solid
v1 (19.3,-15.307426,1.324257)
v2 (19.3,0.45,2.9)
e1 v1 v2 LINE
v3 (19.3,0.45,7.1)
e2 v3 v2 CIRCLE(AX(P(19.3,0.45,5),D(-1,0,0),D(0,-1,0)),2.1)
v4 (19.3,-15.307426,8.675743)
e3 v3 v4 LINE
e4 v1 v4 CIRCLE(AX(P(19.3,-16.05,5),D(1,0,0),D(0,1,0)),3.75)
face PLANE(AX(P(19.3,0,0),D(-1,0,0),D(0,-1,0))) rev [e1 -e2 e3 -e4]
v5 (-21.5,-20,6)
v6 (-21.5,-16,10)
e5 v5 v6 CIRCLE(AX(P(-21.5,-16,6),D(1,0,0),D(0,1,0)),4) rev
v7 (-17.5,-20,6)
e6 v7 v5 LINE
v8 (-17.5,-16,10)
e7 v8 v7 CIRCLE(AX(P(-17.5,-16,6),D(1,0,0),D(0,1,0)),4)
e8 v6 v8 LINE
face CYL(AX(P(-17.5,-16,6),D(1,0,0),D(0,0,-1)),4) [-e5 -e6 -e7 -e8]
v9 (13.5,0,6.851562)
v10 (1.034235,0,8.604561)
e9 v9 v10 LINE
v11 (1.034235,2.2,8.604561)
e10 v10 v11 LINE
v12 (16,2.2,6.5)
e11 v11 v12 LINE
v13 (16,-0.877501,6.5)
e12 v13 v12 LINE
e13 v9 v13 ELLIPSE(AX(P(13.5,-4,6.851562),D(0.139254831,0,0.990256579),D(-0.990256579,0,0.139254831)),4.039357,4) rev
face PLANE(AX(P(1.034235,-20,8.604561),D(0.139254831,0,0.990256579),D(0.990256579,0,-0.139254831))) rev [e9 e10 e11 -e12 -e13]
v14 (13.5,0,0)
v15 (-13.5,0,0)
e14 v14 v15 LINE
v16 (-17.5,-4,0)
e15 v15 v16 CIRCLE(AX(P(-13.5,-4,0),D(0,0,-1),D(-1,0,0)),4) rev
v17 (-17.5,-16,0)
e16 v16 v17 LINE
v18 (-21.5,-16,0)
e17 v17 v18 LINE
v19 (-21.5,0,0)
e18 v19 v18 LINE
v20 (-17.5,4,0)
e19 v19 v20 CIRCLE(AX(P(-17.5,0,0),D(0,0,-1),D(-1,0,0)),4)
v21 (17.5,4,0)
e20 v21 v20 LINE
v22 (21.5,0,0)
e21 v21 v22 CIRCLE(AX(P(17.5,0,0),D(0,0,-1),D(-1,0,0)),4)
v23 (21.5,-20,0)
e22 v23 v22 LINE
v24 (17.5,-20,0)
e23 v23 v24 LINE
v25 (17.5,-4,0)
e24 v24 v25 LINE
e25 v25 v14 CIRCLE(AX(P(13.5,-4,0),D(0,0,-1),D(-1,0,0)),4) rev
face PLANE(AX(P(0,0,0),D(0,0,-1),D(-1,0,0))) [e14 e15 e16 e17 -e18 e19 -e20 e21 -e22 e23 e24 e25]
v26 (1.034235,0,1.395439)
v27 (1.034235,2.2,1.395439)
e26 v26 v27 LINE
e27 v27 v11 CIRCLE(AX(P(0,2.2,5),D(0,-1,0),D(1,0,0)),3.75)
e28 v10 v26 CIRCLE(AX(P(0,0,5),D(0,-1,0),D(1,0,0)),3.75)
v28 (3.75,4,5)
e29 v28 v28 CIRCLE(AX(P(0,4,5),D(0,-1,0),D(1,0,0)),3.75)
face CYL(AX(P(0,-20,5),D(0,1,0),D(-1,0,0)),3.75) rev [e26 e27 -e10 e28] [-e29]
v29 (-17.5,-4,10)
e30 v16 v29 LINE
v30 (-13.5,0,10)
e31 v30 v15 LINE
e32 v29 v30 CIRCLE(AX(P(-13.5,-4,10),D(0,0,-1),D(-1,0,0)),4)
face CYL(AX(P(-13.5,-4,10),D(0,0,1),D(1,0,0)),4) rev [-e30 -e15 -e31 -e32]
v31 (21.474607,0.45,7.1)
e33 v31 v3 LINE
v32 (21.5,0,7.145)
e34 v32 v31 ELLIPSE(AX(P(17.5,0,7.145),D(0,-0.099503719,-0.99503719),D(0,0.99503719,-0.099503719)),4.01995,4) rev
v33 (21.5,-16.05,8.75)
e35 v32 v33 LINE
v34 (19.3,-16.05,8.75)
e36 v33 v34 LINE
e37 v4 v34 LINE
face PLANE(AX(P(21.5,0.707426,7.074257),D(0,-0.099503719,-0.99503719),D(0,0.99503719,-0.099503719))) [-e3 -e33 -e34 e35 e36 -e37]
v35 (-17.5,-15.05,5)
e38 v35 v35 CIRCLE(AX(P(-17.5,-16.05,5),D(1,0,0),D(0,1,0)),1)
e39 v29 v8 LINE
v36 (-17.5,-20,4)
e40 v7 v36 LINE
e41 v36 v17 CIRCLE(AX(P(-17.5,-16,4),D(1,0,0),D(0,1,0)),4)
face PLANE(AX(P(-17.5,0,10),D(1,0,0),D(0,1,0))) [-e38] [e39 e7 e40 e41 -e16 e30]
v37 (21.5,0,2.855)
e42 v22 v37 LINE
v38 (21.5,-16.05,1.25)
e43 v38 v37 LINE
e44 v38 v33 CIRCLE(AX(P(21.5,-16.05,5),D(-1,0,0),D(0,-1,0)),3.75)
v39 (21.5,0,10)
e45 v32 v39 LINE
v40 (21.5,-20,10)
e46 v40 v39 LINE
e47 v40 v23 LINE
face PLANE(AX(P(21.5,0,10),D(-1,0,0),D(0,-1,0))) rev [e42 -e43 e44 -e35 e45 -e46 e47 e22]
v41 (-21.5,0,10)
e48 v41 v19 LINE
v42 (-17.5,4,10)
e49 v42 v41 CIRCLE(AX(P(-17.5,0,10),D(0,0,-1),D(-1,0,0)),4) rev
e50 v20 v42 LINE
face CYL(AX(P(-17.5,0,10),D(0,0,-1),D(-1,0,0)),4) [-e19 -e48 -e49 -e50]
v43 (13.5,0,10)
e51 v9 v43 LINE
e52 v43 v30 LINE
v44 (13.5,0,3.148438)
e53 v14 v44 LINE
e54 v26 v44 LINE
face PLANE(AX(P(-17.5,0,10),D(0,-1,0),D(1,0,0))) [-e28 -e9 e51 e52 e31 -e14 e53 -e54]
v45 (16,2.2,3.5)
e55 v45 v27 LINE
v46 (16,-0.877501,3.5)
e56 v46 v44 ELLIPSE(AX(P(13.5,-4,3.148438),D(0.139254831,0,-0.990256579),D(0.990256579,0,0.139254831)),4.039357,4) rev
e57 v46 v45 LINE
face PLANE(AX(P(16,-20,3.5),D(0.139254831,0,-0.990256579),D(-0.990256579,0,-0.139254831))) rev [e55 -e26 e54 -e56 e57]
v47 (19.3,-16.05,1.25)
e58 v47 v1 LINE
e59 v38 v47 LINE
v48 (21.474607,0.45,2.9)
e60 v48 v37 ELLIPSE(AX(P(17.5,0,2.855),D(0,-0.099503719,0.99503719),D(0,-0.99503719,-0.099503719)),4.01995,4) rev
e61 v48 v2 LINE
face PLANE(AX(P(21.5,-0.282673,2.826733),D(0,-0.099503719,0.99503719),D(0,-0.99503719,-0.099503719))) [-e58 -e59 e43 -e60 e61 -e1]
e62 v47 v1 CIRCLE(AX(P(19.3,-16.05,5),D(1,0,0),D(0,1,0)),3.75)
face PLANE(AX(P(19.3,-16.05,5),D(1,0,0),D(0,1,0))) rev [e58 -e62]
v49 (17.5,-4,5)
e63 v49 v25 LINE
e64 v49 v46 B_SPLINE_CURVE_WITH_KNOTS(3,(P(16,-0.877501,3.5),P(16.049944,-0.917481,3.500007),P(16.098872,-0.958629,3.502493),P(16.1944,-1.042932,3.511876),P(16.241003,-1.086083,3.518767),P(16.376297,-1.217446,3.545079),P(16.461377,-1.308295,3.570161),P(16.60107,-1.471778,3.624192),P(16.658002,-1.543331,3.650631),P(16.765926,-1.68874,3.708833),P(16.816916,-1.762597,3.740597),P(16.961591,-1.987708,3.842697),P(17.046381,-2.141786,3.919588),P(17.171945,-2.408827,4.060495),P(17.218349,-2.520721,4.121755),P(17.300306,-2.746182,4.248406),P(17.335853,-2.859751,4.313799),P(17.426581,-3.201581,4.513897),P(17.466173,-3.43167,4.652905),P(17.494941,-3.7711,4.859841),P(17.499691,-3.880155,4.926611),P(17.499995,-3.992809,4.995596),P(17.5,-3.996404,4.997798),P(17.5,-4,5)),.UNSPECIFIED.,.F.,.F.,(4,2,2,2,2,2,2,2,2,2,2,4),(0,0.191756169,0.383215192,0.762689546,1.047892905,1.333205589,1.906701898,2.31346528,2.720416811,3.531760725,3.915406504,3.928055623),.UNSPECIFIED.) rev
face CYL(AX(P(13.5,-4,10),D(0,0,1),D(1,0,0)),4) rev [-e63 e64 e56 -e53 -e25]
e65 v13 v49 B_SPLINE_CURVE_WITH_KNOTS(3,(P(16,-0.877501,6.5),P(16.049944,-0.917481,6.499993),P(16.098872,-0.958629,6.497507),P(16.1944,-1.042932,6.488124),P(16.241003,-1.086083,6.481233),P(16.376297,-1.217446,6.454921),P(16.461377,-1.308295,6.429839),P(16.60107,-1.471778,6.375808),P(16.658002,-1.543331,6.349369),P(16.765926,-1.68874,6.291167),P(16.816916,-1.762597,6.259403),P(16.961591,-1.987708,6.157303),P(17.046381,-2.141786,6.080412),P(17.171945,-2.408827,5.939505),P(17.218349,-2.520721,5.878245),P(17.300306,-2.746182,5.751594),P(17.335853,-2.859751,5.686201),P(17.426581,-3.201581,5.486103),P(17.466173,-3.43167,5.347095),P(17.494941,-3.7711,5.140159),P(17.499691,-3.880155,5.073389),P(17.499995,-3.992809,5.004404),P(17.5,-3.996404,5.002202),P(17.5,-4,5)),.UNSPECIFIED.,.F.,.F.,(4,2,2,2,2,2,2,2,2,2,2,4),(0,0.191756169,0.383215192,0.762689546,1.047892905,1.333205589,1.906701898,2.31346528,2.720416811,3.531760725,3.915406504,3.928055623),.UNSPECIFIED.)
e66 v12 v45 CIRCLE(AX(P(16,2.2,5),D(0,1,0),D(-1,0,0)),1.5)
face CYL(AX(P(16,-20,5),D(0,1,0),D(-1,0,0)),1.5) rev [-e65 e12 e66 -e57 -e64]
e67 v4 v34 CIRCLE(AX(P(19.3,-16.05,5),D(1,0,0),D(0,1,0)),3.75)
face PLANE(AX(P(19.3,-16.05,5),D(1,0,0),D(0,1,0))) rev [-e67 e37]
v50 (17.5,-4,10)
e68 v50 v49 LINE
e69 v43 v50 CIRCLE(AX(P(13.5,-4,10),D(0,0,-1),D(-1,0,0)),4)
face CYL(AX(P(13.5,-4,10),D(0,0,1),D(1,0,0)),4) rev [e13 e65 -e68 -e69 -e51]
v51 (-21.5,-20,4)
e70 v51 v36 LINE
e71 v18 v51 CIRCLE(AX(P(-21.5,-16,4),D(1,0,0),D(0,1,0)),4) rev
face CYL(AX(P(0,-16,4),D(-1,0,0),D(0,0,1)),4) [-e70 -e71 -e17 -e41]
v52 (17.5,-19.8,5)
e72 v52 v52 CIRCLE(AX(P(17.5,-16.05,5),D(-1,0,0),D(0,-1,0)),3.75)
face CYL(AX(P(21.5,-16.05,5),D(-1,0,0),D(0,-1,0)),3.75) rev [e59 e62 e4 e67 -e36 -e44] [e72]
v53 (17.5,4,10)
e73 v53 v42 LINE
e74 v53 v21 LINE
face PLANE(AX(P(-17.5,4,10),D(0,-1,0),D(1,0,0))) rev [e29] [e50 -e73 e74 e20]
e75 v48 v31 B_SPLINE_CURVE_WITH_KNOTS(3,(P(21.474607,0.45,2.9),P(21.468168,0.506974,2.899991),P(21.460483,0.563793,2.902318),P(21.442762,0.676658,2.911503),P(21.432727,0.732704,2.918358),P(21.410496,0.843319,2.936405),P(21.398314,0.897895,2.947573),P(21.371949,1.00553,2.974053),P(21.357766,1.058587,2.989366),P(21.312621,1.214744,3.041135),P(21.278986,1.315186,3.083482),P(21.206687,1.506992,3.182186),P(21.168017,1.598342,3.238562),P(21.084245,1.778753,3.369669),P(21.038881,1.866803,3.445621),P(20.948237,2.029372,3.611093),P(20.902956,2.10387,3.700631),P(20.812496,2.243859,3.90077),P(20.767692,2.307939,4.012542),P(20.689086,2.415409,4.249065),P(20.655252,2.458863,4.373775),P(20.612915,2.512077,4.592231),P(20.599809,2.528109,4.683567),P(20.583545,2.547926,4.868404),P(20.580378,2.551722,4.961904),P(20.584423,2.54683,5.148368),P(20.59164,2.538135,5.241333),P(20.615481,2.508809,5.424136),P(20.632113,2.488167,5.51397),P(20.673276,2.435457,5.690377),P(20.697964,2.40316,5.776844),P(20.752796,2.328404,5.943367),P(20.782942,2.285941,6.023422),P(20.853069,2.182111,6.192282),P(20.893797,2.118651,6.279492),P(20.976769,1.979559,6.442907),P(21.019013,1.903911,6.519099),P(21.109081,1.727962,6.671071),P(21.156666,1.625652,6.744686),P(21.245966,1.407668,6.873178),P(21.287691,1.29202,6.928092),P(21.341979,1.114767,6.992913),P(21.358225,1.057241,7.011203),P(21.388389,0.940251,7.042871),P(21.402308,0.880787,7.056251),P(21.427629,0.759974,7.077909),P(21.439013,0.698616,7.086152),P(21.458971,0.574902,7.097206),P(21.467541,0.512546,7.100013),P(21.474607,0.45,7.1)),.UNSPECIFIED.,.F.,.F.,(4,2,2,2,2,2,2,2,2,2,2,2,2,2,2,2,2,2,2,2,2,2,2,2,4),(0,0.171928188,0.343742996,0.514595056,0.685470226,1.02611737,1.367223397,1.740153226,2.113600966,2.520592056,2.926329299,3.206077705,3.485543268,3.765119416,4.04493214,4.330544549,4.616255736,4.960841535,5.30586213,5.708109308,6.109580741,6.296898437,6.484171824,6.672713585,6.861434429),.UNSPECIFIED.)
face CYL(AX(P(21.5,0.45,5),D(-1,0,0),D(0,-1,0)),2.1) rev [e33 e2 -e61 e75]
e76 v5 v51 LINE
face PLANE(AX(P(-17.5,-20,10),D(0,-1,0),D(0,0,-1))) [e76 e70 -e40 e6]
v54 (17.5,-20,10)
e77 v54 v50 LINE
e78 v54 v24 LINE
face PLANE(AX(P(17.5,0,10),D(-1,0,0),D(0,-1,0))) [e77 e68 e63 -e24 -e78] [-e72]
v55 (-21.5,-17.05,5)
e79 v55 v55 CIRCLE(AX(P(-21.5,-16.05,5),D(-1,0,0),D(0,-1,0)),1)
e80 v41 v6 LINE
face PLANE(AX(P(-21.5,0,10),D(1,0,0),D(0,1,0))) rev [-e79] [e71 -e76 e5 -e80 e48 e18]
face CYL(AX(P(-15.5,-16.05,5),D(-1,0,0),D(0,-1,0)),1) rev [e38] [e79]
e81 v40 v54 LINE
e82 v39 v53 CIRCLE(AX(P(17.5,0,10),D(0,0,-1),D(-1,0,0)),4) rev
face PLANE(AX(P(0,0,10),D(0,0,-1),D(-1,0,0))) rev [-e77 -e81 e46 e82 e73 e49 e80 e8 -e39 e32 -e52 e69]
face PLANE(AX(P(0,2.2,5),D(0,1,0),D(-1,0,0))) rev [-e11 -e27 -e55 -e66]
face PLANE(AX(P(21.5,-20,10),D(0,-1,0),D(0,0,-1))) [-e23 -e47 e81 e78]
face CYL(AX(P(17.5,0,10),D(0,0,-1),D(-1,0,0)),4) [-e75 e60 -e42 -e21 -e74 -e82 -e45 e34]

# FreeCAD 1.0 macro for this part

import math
import FreeCAD as App
import Part
import Sketcher
from FreeCAD import Vector
Q = App.Units.Quantity


def edges_at(feature, points):
    """Names of the edges that pass closest to the given points."""
    edges = feature.Shape.Edges
    near = lambda p: min(range(len(edges)), key=lambda i: edges[i].distToShape(Part.Vertex(*p))[0])
    return sorted({f"Edge{near(p) + 1}" for p in points})

doc = App.newDocument("Part")
params = doc.addObject("Spreadsheet::Sheet", "Params")
for row, (alias, value) in enumerate([
    ("sketch1_width", "35 mm"),
    ("sketch1_width2", "4 mm"),
    ("sketch1_height", "20 mm"),
    ("sketch1_height2", "24 mm"),
    ("pad1_length", "10 mm"),
    ("fillet_radius", "4 mm"),
    ("sketch2_radius", "2.1 mm"),
    ("sketch2_radius2", "3.75 mm"),
    ("sketch3_diameter", "7.5 mm"),
    ("pocket2_length", "10 mm"),
    ("sketch4_diameter", "2 mm"),
    ("pocket3_length", "6 mm"),
    ("fillet2_radius", "4 mm"),
    ("sketch5_radius", "1.5 mm"),
    ("sketch5_radius2", "3.75 mm"),
    ("sketch6_diameter", "7.5 mm"),
    ("pocket5_length", "10 mm"),
], start=1):
    params.set(f"A{row}", alias)
    params.set(f"B{row}", "=" + value)
    params.setAlias(f"B{row}", alias)

body = doc.addObject("PartDesign::Body", "Body")

# Sketch on XY plane
sketch1 = body.newObject("Sketcher::SketchObject", "Sketch")
sketch1.AttachmentSupport = (doc.getObject("XY_Plane"), [""])
sketch1.MapMode = "FlatFace"
sketch1.addGeometry(Part.LineSegment(Vector(-17.5, -20, 0), Vector(-17.5, 0, 0)), False)
sketch1.addGeometry(Part.LineSegment(Vector(-17.5, 0, 0), Vector(17.5, 0, 0)), False)
sketch1.addGeometry(Part.LineSegment(Vector(17.5, 0, 0), Vector(17.5, -20, 0)), False)
sketch1.addGeometry(Part.LineSegment(Vector(17.5, -20, 0), Vector(21.5, -20, 0)), False)
sketch1.addGeometry(Part.LineSegment(Vector(21.5, -20, 0), Vector(21.5, 4, 0)), False)
sketch1.addGeometry(Part.LineSegment(Vector(21.5, 4, 0), Vector(-21.5, 4, 0)), False)
sketch1.addGeometry(Part.LineSegment(Vector(-21.5, 4, 0), Vector(-21.5, -20, 0)), False)
sketch1.addGeometry(Part.LineSegment(Vector(-21.5, -20, 0), Vector(-17.5, -20, 0)), False)
sketch1.addConstraint(Sketcher.Constraint("Coincident", 0, 2, 1, 1))
sketch1.addConstraint(Sketcher.Constraint("Coincident", 1, 2, 2, 1))
sketch1.addConstraint(Sketcher.Constraint("Coincident", 2, 2, 3, 1))
sketch1.addConstraint(Sketcher.Constraint("Coincident", 3, 2, 4, 1))
sketch1.addConstraint(Sketcher.Constraint("Coincident", 4, 2, 5, 1))
sketch1.addConstraint(Sketcher.Constraint("Coincident", 5, 2, 6, 1))
sketch1.addConstraint(Sketcher.Constraint("Coincident", 6, 2, 7, 1))
sketch1.addConstraint(Sketcher.Constraint("Coincident", 7, 2, 0, 1))
sketch1.addConstraint(Sketcher.Constraint("Vertical", 0))
sketch1.addConstraint(Sketcher.Constraint("Horizontal", 1))
sketch1.addConstraint(Sketcher.Constraint("Vertical", 2))
sketch1.addConstraint(Sketcher.Constraint("Horizontal", 3))
sketch1.addConstraint(Sketcher.Constraint("Vertical", 4))
sketch1.addConstraint(Sketcher.Constraint("Horizontal", 5))
sketch1.addConstraint(Sketcher.Constraint("Vertical", 6))
sketch1.addConstraint(Sketcher.Constraint("Horizontal", 7))
sketch1.addConstraint(Sketcher.Constraint("Symmetric", 0, 2, 1, 2, -1, 1))
sketch1.addConstraint(Sketcher.Constraint("Symmetric", 3, 2, 6, 2, -2))
sketch1.addConstraint(Sketcher.Constraint("DistanceX", 1, 1, 1, 2, Q("35 mm")))
sketch1.addConstraint(Sketcher.Constraint("DistanceX", 3, 1, 3, 2, Q("4 mm")))
sketch1.addConstraint(Sketcher.Constraint("DistanceY", 0, 1, 0, 2, Q("20 mm")))
sketch1.addConstraint(Sketcher.Constraint("DistanceY", 4, 1, 4, 2, Q("24 mm")))
sketch1.setExpression("Constraints[18]", "Params.sketch1_width")
sketch1.setExpression("Constraints[19]", "Params.sketch1_width2")
sketch1.setExpression("Constraints[20]", "Params.sketch1_height")
sketch1.setExpression("Constraints[21]", "Params.sketch1_height2")
pad1 = body.newObject("PartDesign::Pad", "Pad")
pad1.Profile = sketch1
pad1.setExpression("Length", "Params.pad1_length")
doc.recompute()

fillet = body.newObject("PartDesign::Fillet", "Fillet")
fillet.Base = (pad1, edges_at(pad1, [
    (-21.5, 4, 5),
    (21.5, 4, 5),
    (17.5, 0, 5),
    (-17.5, 0, 5),
]))
fillet.setExpression("Radius", "Params.fillet_radius")

# Sketch on YZ plane
sketch2 = body.newObject("Sketcher::SketchObject", "Sketch001")
sketch2.AttachmentSupport = (doc.getObject("YZ_Plane"), [""])
sketch2.MapMode = "FlatFace"
sketch2.AttachmentOffset = App.Placement(Vector(0, 0, 19.3), App.Rotation())
sketch2.addGeometry(Part.LineSegment(Vector(-15.3, 1.3, 0), Vector(-16.1, 1.2, 0)), False)
sketch2.addGeometry(Part.ArcOfCircle(Part.Circle(Vector(-16.1, 5, 0), Vector(0, 0, 1), 3.8), math.radians(90), math.radians(270)), False)
sketch2.addGeometry(Part.LineSegment(Vector(-16.1, 8.8, 0), Vector(-15.3, 8.7, 0)), False)
sketch2.addGeometry(Part.LineSegment(Vector(-15.3, 8.7, 0), Vector(-4, 7.5, 0)), False)
sketch2.addGeometry(Part.LineSegment(Vector(-4, 7.5, 0), Vector(0.5, 7.1, 0)), False)
sketch2.addGeometry(Part.ArcOfCircle(Part.Circle(Vector(0.5, 5, 0), Vector(0, 0, 1), 2.1), math.radians(-90), math.radians(90)), False)
sketch2.addGeometry(Part.LineSegment(Vector(0.5, 2.9, 0), Vector(-4, 2.5, 0)), False)
sketch2.addGeometry(Part.LineSegment(Vector(-4, 2.5, 0), Vector(-15.3, 1.3, 0)), False)
sketch2.addConstraint(Sketcher.Constraint("Coincident", 0, 2, 1, 2))
sketch2.addConstraint(Sketcher.Constraint("Coincident", 1, 1, 2, 1))
sketch2.addConstraint(Sketcher.Constraint("Coincident", 2, 2, 3, 1))
sketch2.addConstraint(Sketcher.Constraint("Coincident", 3, 2, 4, 1))
sketch2.addConstraint(Sketcher.Constraint("Coincident", 4, 2, 5, 2))
sketch2.addConstraint(Sketcher.Constraint("Coincident", 5, 1, 6, 1))
sketch2.addConstraint(Sketcher.Constraint("Coincident", 6, 2, 7, 1))
sketch2.addConstraint(Sketcher.Constraint("Coincident", 7, 2, 0, 1))
sketch2.addConstraint(Sketcher.Constraint("Parallel", 2, 3))
sketch2.addConstraint(Sketcher.Constraint("Parallel", 3, 4))
sketch2.addConstraint(Sketcher.Constraint("Parallel", 0, 6))
sketch2.addConstraint(Sketcher.Constraint("Parallel", 6, 7))
sketch2.addConstraint(Sketcher.Constraint("Horizontal", 1, 3, 5, 3))
sketch2.addConstraint(Sketcher.Constraint("Vertical", 1, 3, 0, 2))
sketch2.addConstraint(Sketcher.Constraint("Vertical", 0, 2, 1, 1))
sketch2.addConstraint(Sketcher.Constraint("Vertical", 5, 3, 4, 2))
sketch2.addConstraint(Sketcher.Constraint("Vertical", 4, 2, 5, 1))
sketch2.addConstraint(Sketcher.Constraint("Vertical", 3, 2, 6, 2))
sketch2.addConstraint(Sketcher.Constraint("Vertical", 2, 2, 7, 2))
sketch2.addConstraint(Sketcher.Constraint("Radius", 5, Q("2.1 mm")))
sketch2.addConstraint(Sketcher.Constraint("Radius", 1, Q("3.75 mm")))
sketch2.addConstraint(Sketcher.Constraint("DistanceY", -1, 1, 1, 3, Q("5 mm")))
sketch2.addConstraint(Sketcher.Constraint("DistanceX", 3, 2, -1, 1, Q("4 mm")))
sketch2.addConstraint(Sketcher.Constraint("DistanceX", 1, 3, 5, 3, Q("16.5 mm")))
sketch2.addConstraint(Sketcher.Constraint("DistanceX", 1, 3, -1, 1, Q("16.05 mm")))
sketch2.addConstraint(Sketcher.Constraint("Distance", 0, Q("0.746278 mm")))
sketch2.setExpression("Constraints[19]", "Params.sketch2_radius")
sketch2.setExpression("Constraints[20]", "Params.sketch2_radius2")
pocket1 = body.newObject("PartDesign::Pocket", "Pocket")
pocket1.Profile = sketch2
pocket1.Type = "ThroughAll"
pocket1.Reversed = True

# Sketch on YZ plane
sketch3 = body.newObject("Sketcher::SketchObject", "Sketch002")
sketch3.AttachmentSupport = (doc.getObject("YZ_Plane"), [""])
sketch3.MapMode = "FlatFace"
sketch3.AttachmentOffset = App.Placement(Vector(0, 0, 9.3), App.Rotation())
sketch3.addGeometry(Part.Circle(Vector(-16.1, 5, 0), Vector(0, 0, 1), 3.8), False)
sketch3.addConstraint(Sketcher.Constraint("Diameter", 0, Q("7.5 mm")))
sketch3.addConstraint(Sketcher.Constraint("DistanceY", -1, 1, 0, 3, Q("5 mm")))
sketch3.addConstraint(Sketcher.Constraint("DistanceX", 0, 3, -1, 1, Q("16.05 mm")))
sketch3.setExpression("Constraints[0]", "Params.sketch3_diameter")
pocket2 = body.newObject("PartDesign::Pocket", "Pocket001")
pocket2.Profile = sketch3
pocket2.setExpression("Length", "Params.pocket2_length")
pocket2.Reversed = True

# Sketch on YZ plane
sketch4 = body.newObject("Sketcher::SketchObject", "Sketch003")
sketch4.AttachmentSupport = (doc.getObject("YZ_Plane"), [""])
sketch4.MapMode = "FlatFace"
sketch4.AttachmentOffset = App.Placement(Vector(0, 0, -21.5), App.Rotation())
sketch4.addGeometry(Part.Circle(Vector(-16.1, 5, 0), Vector(0, 0, 1), 1), False)
sketch4.addConstraint(Sketcher.Constraint("Diameter", 0, Q("2 mm")))
sketch4.addConstraint(Sketcher.Constraint("DistanceY", -1, 1, 0, 3, Q("5 mm")))
sketch4.addConstraint(Sketcher.Constraint("DistanceX", 0, 3, -1, 1, Q("16.05 mm")))
sketch4.setExpression("Constraints[0]", "Params.sketch4_diameter")
pocket3 = body.newObject("PartDesign::Pocket", "Pocket002")
pocket3.Profile = sketch4
pocket3.setExpression("Length", "Params.pocket3_length")
pocket3.Reversed = True
doc.recompute()

fillet2 = body.newObject("PartDesign::Fillet", "Fillet001")
fillet2.Base = (pocket3, edges_at(pocket3, [(-19.5, -20, 10), (-19.5, -20, 0)]))
fillet2.setExpression("Radius", "Params.fillet2_radius")

# Sketch on XZ plane
sketch5 = body.newObject("Sketcher::SketchObject", "Sketch004")
sketch5.AttachmentSupport = (doc.getObject("XZ_Plane"), [""])
sketch5.MapMode = "FlatFace"
sketch5.AttachmentOffset = App.Placement(Vector(0, 0, -2.2), App.Rotation())
sketch5.addGeometry(Part.LineSegment(Vector(1, 8.6, 0), Vector(16, 6.5, 0)), False)
sketch5.addGeometry(Part.ArcOfCircle(Part.Circle(Vector(16, 5, 0), Vector(0, 0, 1), 1.5), math.radians(-90), math.radians(90)), False)
sketch5.addGeometry(Part.LineSegment(Vector(16, 3.5, 0), Vector(1, 1.4, 0)), False)
sketch5.addGeometry(Part.ArcOfCircle(Part.Circle(Vector(0, 5, 0), Vector(0, 0, 1), 3.8), math.radians(74), math.radians(286)), False)
sketch5.addConstraint(Sketcher.Constraint("Coincident", 0, 2, 1, 2))
sketch5.addConstraint(Sketcher.Constraint("Coincident", 1, 1, 2, 1))
sketch5.addConstraint(Sketcher.Constraint("Coincident", 2, 2, 3, 2))
sketch5.addConstraint(Sketcher.Constraint("Coincident", 3, 1, 0, 1))
sketch5.addConstraint(Sketcher.Constraint("PointOnObject", 3, 3, -2))
sketch5.addConstraint(Sketcher.Constraint("Horizontal", 1, 3, 3, 3))
sketch5.addConstraint(Sketcher.Constraint("Vertical", 1, 3, 0, 2))
sketch5.addConstraint(Sketcher.Constraint("Vertical", 0, 2, 1, 1))
sketch5.addConstraint(Sketcher.Constraint("Vertical", 2, 2, 3, 1))
sketch5.addConstraint(Sketcher.Constraint("Radius", 1, Q("1.5 mm")))
sketch5.addConstraint(Sketcher.Constraint("Radius", 3, Q("3.75 mm")))
sketch5.addConstraint(Sketcher.Constraint("DistanceX", -1, 1, 1, 3, Q("16 mm")))
sketch5.addConstraint(Sketcher.Constraint("DistanceY", -1, 1, 1, 3, Q("5 mm")))
sketch5.addConstraint(Sketcher.Constraint("DistanceY", -1, 1, 2, 2, Q("1.395439 mm")))
sketch5.setExpression("Constraints[9]", "Params.sketch5_radius")
sketch5.setExpression("Constraints[10]", "Params.sketch5_radius2")
pocket4 = body.newObject("PartDesign::Pocket", "Pocket003")
pocket4.Profile = sketch5
pocket4.Type = "ThroughAll"
pocket4.Reversed = True

# Sketch on XZ plane
sketch6 = body.newObject("Sketcher::SketchObject", "Sketch005")
sketch6.AttachmentSupport = (doc.getObject("XZ_Plane"), [""])
sketch6.MapMode = "FlatFace"
sketch6.AttachmentOffset = App.Placement(Vector(0, 0, -12.2), App.Rotation())
sketch6.addGeometry(Part.Circle(Vector(0, 5, 0), Vector(0, 0, 1), 3.8), False)
sketch6.addConstraint(Sketcher.Constraint("PointOnObject", 0, 3, -2))
sketch6.addConstraint(Sketcher.Constraint("Diameter", 0, Q("7.5 mm")))
sketch6.addConstraint(Sketcher.Constraint("DistanceY", -1, 1, 0, 3, Q("5 mm")))
sketch6.setExpression("Constraints[1]", "Params.sketch6_diameter")
pocket5 = body.newObject("PartDesign::Pocket", "Pocket004")
pocket5.Profile = sketch6
pocket5.setExpression("Length", "Params.pocket5_length")
pocket5.Reversed = True

doc.recompute()
